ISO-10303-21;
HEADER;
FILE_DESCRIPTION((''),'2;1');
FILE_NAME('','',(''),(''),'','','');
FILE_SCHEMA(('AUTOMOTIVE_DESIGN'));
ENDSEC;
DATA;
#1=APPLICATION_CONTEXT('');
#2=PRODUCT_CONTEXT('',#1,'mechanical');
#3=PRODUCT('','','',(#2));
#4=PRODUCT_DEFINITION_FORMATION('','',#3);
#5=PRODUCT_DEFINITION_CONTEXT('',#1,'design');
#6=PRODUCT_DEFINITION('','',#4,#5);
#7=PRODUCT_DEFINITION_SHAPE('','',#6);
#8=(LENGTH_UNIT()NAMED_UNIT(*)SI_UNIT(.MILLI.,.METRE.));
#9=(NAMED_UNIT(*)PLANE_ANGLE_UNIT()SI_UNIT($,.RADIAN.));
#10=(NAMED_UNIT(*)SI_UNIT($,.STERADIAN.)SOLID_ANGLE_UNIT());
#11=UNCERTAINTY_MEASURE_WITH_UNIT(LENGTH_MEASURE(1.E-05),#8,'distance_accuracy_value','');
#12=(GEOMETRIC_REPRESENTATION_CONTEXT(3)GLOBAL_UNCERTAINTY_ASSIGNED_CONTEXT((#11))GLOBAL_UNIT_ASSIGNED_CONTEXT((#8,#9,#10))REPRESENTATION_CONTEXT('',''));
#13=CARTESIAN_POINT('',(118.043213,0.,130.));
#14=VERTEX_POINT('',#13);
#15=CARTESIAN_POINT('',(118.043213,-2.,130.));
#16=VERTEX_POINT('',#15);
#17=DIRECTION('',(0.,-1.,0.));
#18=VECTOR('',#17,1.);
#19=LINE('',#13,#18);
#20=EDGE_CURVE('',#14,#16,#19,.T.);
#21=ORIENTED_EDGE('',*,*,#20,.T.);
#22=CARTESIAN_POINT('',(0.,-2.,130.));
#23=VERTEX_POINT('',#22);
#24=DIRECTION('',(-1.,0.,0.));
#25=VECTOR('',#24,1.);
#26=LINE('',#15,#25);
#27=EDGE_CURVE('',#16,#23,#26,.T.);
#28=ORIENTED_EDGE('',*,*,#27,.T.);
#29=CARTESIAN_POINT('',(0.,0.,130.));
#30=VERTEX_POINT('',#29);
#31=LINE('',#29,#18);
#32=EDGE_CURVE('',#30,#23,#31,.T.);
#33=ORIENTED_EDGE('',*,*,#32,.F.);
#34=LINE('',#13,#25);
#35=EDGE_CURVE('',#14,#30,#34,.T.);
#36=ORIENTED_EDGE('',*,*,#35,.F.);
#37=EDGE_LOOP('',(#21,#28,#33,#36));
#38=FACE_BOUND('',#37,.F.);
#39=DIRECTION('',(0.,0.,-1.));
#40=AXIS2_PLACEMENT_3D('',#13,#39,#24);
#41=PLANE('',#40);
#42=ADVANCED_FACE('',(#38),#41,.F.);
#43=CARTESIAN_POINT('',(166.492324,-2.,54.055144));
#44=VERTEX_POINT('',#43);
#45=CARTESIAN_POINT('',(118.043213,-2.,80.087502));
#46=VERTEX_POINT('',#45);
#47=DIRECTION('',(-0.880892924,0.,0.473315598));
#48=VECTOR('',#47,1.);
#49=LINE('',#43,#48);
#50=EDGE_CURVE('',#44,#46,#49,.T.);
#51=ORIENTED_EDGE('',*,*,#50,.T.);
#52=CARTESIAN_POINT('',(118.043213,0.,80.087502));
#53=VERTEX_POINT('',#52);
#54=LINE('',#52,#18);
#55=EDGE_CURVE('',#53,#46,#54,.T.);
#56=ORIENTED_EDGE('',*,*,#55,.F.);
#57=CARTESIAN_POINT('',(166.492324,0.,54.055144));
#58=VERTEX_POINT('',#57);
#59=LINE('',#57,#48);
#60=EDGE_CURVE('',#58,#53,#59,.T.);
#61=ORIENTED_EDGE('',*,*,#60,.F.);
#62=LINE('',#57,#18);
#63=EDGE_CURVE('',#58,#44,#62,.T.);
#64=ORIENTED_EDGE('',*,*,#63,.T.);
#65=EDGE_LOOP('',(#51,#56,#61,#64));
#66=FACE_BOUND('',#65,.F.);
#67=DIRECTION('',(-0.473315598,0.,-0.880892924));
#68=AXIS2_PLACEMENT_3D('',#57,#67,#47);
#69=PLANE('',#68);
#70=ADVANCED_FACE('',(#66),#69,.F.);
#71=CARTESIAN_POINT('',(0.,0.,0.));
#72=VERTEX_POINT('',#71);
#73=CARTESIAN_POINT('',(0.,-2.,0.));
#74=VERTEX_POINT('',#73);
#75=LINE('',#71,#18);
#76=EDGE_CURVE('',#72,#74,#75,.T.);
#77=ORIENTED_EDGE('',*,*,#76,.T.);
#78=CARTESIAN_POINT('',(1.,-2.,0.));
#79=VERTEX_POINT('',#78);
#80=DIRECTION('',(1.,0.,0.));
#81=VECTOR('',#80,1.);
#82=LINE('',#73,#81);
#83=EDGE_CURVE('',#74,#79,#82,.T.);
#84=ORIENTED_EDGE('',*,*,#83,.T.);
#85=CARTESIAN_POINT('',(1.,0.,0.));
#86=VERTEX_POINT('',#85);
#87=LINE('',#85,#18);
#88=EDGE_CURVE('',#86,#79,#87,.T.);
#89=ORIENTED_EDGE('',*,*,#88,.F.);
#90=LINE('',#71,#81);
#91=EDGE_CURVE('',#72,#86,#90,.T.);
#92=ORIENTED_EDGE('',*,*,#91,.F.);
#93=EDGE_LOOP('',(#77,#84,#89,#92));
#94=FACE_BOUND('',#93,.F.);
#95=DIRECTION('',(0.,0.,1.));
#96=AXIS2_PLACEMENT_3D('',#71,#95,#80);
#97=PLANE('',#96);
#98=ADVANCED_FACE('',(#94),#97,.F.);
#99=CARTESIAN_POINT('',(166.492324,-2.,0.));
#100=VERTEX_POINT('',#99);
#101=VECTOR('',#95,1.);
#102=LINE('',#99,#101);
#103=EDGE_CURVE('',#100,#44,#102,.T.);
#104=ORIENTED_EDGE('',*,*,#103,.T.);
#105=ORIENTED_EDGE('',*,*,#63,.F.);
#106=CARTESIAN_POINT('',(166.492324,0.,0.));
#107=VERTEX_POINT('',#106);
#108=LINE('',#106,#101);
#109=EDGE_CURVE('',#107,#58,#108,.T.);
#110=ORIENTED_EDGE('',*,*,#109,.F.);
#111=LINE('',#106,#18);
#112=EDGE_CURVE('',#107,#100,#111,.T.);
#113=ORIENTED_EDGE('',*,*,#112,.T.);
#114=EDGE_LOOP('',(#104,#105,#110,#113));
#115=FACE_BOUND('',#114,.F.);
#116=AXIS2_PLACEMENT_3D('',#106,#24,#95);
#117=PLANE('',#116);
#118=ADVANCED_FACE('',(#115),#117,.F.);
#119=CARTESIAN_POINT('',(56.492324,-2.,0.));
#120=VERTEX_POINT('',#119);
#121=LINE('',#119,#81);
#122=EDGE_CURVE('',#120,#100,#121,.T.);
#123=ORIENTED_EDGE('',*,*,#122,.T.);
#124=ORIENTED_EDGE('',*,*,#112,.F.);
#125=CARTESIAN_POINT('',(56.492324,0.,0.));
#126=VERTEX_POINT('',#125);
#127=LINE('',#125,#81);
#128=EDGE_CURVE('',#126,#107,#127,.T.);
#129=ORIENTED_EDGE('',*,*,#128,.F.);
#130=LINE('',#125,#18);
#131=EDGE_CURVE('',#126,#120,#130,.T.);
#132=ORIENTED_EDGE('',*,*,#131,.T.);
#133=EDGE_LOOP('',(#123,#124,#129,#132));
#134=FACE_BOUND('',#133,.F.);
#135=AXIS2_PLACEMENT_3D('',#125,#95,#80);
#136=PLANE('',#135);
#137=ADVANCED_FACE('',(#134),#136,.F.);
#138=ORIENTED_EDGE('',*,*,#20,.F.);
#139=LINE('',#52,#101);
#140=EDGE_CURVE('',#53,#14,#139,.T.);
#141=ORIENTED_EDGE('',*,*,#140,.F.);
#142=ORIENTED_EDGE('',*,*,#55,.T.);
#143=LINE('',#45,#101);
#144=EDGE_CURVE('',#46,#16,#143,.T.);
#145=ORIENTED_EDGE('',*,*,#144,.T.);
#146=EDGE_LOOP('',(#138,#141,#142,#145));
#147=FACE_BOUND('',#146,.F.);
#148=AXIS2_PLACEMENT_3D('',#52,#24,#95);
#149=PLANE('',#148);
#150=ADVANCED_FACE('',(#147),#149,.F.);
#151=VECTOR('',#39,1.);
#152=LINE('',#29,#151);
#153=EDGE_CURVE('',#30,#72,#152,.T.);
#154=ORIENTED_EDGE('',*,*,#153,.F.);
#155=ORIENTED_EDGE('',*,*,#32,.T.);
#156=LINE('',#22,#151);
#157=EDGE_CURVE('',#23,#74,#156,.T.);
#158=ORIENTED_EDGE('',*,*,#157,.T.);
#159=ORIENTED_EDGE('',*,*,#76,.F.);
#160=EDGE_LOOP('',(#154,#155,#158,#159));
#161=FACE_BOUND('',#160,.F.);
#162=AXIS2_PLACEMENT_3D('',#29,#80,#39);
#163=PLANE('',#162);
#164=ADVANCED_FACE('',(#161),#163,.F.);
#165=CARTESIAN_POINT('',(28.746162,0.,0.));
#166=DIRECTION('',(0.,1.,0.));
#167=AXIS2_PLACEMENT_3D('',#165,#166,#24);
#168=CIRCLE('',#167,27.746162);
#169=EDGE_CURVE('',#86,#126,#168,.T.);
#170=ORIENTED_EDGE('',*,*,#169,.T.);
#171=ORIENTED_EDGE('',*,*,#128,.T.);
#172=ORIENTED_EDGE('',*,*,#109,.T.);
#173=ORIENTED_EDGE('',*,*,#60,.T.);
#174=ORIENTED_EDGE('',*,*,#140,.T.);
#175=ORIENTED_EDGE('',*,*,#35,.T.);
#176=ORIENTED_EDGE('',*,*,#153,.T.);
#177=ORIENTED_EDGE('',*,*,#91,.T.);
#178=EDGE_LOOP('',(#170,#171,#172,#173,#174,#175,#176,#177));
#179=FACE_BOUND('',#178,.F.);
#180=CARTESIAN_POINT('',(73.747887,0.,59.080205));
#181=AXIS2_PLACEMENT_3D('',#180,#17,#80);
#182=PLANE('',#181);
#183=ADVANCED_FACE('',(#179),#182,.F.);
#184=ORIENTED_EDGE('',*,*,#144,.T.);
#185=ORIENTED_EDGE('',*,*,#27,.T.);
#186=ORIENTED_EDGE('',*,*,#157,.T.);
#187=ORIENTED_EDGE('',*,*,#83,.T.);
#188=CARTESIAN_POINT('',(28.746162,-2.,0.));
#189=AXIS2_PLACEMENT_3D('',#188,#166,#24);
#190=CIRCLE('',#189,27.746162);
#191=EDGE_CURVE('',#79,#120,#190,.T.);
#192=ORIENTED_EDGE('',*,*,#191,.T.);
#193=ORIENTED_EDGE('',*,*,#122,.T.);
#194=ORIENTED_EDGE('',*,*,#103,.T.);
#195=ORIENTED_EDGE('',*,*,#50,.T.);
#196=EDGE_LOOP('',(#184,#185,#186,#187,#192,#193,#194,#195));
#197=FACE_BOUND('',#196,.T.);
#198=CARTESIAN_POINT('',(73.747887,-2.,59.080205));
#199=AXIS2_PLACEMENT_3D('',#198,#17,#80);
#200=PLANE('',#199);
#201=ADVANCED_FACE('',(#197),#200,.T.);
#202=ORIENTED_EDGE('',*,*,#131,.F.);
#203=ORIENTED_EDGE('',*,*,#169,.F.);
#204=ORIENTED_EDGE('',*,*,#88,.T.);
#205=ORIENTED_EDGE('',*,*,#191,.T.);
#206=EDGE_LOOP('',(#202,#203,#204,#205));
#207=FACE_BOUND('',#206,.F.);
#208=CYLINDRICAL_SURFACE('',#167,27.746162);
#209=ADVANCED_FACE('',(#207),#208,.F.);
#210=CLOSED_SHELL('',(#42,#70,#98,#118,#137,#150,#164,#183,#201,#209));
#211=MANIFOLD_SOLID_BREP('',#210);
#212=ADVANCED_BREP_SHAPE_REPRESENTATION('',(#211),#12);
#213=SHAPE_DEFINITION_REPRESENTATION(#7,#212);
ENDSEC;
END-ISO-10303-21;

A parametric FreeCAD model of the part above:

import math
import FreeCAD as App
import Part
import Sketcher
Q = App.Units.Quantity

doc = App.newDocument("Part")
params = doc.addObject("Spreadsheet::Sheet", "Params")
for row, (alias, value) in enumerate([
    ("sketch1_width", "1 mm"),
    ("sketch1_width2", "110 mm"),
    ("sketch1_height", "130 mm"),
    ("sketch1_length", "55 mm"),
    ("pad1_length", "2 mm"),
], start=1):
    params.set(f"A{row}", alias)
    params.set(f"B{row}", "=" + value)
    params.setAlias(f"B{row}", alias)

body = doc.addObject("PartDesign::Body", "Body")

sketch1 = body.newObject("Sketcher::SketchObject", "Sketch")
sketch1.AttachmentSupport = (doc.getObject("XZ_Plane"), [""])
sketch1.MapMode = "FlatFace"
sketch1.addGeometry([
    Part.LineSegment(App.Vector(0, 130, 0), App.Vector(0, 0, 0)),
    Part.LineSegment(App.Vector(0, 0, 0), App.Vector(1, 0, 0)),
    Part.ArcOfCircle(Part.Circle(App.Vector(28.7, 0, 0), App.Vector(0, 0, 1), 27.7), math.radians(0), math.radians(180)),
    Part.LineSegment(App.Vector(56.5, 0, 0), App.Vector(166.5, 0, 0)),
    Part.LineSegment(App.Vector(166.5, 0, 0), App.Vector(166.5, 54.1, 0)),
    Part.LineSegment(App.Vector(166.5, 54.1, 0), App.Vector(118, 80.1, 0)),
    Part.LineSegment(App.Vector(118, 80.1, 0), App.Vector(118, 130, 0)),
    Part.LineSegment(App.Vector(118, 130, 0), App.Vector(0, 130, 0)),
], False)
sketch1.addConstraint([
    Sketcher.Constraint("Coincident", 0, 2, 1, 1),
    Sketcher.Constraint("Coincident", 1, 2, 2, 2),
    Sketcher.Constraint("Coincident", 2, 1, 3, 1),
    Sketcher.Constraint("Coincident", 3, 2, 4, 1),
    Sketcher.Constraint("Coincident", 4, 2, 5, 1),
    Sketcher.Constraint("Coincident", 5, 2, 6, 1),
    Sketcher.Constraint("Coincident", 6, 2, 7, 1),
    Sketcher.Constraint("Coincident", 7, 2, 0, 1),
    Sketcher.Constraint("Vertical", 0),
    Sketcher.Constraint("Horizontal", 1),
    Sketcher.Constraint("Horizontal", 3),
    Sketcher.Constraint("Vertical", 4),
    Sketcher.Constraint("Vertical", 6),
    Sketcher.Constraint("Horizontal", 7),
    Sketcher.Constraint("Coincident", 0, 2, -1, 1),
    Sketcher.Constraint("PointOnObject", 2, 3, -1),
    Sketcher.Constraint("PointOnObject", 2, 1, -1),
    Sketcher.Constraint("DistanceX", 1, 1, 1, 2, Q("1 mm")),
    Sketcher.Constraint("DistanceX", 3, 1, 3, 2, Q("110 mm")),
    Sketcher.Constraint("DistanceY", 0, 2, 0, 1, Q("130 mm")),
    Sketcher.Constraint("Distance", 5, Q("55 mm")),
    Sketcher.Constraint("Radius", 2, Q("27.746162 mm")),
    Sketcher.Constraint("DistanceY", -1, 1, 5, 2, Q("80.087502 mm")),
    Sketcher.Constraint("DistanceX", 7, 2, 7, 1, Q("118.043213 mm")),
])
sketch1.setExpression("Constraints[17]", "Params.sketch1_width")
sketch1.setExpression("Constraints[18]", "Params.sketch1_width2")
sketch1.setExpression("Constraints[19]", "Params.sketch1_height")
sketch1.setExpression("Constraints[20]", "Params.sketch1_length")
pad1 = body.newObject("PartDesign::Pad", "Pad")
pad1.Profile = sketch1
pad1.setExpression("Length", "Params.pad1_length")

doc.recompute()
